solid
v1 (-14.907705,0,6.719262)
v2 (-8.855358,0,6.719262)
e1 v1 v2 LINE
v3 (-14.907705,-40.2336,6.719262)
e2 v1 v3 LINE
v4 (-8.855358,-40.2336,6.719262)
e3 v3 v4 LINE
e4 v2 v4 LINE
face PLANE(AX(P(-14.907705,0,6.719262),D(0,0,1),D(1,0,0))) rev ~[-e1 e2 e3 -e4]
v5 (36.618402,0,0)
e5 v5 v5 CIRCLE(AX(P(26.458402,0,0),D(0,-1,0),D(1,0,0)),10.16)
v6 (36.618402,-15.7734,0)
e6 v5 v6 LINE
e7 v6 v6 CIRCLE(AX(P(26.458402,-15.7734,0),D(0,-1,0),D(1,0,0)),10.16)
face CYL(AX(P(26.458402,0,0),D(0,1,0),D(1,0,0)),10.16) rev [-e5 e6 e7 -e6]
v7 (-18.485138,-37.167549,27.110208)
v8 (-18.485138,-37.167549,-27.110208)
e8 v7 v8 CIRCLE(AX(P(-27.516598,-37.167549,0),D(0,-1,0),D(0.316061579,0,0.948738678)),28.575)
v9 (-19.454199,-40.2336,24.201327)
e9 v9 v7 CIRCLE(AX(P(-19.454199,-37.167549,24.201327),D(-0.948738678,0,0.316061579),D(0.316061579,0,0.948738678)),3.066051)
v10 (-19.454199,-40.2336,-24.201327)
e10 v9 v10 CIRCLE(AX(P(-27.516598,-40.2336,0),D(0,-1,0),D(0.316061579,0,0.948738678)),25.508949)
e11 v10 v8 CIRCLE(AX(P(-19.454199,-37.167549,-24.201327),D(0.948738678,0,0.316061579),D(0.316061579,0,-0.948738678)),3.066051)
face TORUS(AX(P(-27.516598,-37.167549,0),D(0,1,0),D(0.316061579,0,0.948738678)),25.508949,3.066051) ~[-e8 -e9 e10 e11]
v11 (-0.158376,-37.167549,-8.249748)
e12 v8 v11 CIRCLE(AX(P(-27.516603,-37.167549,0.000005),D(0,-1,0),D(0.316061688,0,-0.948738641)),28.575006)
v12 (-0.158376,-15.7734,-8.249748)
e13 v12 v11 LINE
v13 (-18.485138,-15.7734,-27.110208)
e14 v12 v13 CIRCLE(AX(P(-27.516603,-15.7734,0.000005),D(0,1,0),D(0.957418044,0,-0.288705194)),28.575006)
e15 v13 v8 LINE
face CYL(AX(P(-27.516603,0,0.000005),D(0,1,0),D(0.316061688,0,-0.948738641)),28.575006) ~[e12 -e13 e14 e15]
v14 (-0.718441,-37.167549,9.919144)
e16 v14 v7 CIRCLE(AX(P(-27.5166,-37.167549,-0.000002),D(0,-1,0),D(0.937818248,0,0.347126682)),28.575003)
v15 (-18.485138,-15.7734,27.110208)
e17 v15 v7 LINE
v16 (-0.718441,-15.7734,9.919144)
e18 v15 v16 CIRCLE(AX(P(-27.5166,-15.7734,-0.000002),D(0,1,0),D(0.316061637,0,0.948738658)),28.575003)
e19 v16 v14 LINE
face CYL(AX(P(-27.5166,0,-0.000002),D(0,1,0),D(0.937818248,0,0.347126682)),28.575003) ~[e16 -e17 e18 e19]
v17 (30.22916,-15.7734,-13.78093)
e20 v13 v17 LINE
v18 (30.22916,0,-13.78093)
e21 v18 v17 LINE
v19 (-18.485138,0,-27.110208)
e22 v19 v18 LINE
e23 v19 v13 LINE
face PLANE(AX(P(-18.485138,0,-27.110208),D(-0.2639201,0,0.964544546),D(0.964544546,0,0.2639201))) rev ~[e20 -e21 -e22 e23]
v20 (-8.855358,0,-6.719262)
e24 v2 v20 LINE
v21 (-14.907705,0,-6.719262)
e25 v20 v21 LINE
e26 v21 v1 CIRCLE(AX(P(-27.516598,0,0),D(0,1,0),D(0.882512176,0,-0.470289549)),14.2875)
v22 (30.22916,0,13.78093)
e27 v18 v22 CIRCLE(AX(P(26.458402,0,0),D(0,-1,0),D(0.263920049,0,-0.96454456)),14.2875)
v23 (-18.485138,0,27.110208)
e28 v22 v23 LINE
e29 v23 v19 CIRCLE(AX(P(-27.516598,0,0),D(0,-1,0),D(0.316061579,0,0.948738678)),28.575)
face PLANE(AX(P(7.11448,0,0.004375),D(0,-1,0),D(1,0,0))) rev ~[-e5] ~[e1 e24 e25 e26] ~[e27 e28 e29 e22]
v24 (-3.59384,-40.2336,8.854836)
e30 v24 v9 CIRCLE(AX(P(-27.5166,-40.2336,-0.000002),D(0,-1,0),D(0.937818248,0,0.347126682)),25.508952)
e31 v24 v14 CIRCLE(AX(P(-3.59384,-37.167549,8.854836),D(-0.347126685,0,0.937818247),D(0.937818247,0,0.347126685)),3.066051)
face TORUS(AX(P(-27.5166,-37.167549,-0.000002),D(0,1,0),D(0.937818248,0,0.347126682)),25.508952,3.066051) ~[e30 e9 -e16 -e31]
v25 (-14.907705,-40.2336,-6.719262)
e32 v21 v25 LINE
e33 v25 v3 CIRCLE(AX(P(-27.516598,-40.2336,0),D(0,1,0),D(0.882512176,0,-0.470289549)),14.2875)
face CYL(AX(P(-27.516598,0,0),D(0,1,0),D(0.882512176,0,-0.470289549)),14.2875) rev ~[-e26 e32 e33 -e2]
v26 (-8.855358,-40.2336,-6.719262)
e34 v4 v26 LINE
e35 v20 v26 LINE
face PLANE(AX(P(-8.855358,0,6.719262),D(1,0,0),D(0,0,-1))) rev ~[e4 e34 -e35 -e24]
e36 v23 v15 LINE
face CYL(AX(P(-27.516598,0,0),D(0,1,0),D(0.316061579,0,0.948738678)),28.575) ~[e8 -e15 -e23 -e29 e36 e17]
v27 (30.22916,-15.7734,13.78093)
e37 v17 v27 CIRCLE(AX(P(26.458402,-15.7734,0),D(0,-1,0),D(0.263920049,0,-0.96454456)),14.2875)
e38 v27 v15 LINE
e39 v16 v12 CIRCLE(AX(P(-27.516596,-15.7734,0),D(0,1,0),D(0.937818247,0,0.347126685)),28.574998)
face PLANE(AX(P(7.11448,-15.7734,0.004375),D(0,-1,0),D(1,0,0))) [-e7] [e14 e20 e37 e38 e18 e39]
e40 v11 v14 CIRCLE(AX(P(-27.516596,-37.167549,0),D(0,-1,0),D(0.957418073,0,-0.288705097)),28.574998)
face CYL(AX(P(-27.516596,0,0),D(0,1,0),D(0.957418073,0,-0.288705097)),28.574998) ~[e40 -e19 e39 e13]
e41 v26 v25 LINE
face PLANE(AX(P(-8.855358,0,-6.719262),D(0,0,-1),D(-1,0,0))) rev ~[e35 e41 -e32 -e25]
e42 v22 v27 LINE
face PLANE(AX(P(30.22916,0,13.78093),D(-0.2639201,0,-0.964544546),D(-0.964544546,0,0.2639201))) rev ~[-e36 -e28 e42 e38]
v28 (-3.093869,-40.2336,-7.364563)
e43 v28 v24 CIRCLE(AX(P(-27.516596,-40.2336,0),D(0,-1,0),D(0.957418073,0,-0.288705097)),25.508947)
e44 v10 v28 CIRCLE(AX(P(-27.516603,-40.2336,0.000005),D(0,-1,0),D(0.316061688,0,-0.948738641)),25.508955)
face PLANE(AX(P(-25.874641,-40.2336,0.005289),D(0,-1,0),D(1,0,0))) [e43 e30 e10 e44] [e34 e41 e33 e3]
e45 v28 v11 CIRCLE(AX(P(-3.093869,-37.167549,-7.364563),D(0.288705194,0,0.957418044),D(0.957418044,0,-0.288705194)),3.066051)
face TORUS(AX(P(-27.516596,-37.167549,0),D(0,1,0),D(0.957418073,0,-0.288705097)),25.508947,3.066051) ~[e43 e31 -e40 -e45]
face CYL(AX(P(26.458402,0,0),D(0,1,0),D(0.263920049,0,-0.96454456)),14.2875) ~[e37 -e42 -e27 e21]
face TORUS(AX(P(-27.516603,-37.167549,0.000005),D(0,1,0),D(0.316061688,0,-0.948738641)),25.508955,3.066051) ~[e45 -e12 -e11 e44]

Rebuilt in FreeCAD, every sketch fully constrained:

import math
import FreeCAD as App
import Part
import Sketcher

V = App.Vector
Q = App.Units.Quantity


def edges_at(feature, points):
    """Names of the edges that pass closest to the given points."""
    edges = feature.Shape.Edges
    near = lambda p: min(range(len(edges)), key=lambda i: edges[i].distToShape(Part.Vertex(*p))[0])
    return sorted({f"Edge{near(p) + 1}" for p in points})

doc = App.newDocument("Part")
body = doc.addObject("PartDesign::Body", "Body")

# Sketch on XZ plane
sketch1 = body.newObject("Sketcher::SketchObject", "Sketch")
sketch1.AttachmentSupport = (doc.getObject("XZ_Plane"), [""])
sketch1.MapMode = "FlatFace"
sketch1.addGeometry(Part.ArcOfCircle(Part.Circle(V(-27.5166, -0.000002, 0), V(0, 0, 1), 28.575003), math.radians(20.31167), math.radians(71.575084)), False)
sketch1.addGeometry(Part.ArcOfCircle(Part.Circle(V(-27.516596, 0, 0), V(0, 0, 1), 28.574998), math.radians(-16.780448), math.radians(20.311671)), False)
sketch1.addGeometry(Part.ArcOfCircle(Part.Circle(V(-27.516603, 0.000005, 0), V(0, 0, 1), 28.575006), math.radians(-71.575081), math.radians(-16.780454)), False)
sketch1.addGeometry(Part.LineSegment(V(-18.485138, -27.110208, 0), V(30.22916, -13.78093, 0)), False)
sketch1.addGeometry(Part.ArcOfCircle(Part.Circle(V(26.458402, 0, 0), V(0, 0, 1), 14.2875), math.radians(-74.697208), math.radians(74.697208)), False)
sketch1.addGeometry(Part.LineSegment(V(30.22916, 13.78093, 0), V(-18.485138, 27.110208, 0)), False)
sketch1.addGeometry(Part.Circle(V(26.458402, 0, 0), V(0, 0, 1), 10.16), False)
sketch1.addConstraint(Sketcher.Constraint("Tangent", 0, 1, 1, 2))
sketch1.addConstraint(Sketcher.Constraint("Tangent", 1, 1, 2, 2))
sketch1.addConstraint(Sketcher.Constraint("Coincident", 2, 1, 3, 1))
sketch1.addConstraint(Sketcher.Constraint("Tangent", 3, 2, 4, 1))
sketch1.addConstraint(Sketcher.Constraint("Tangent", 4, 2, 5, 1))
sketch1.addConstraint(Sketcher.Constraint("Coincident", 5, 2, 0, 2))
sketch1.addConstraint(Sketcher.Constraint("Coincident", 2, 3, 0, 3))
sketch1.addConstraint(Sketcher.Constraint("Coincident", 6, 3, 4, 3))
sketch1.addConstraint(Sketcher.Constraint("Symmetric", 3, 2, 4, 2, -1))
sketch1.addConstraint(Sketcher.Constraint("PointOnObject", 0, 3, -1))
sketch1.addConstraint(Sketcher.Constraint("Diameter", 6, Q("0.8 in")))
sketch1.addConstraint(Sketcher.Constraint("Radius", 0, Q("1.1250001 in")))
sketch1.addConstraint(Sketcher.Constraint("Radius", 4, Q("0.5625 in")))
sketch1.addConstraint(Sketcher.Constraint("DistanceX", 1, 3, 4, 3, Q("2.1249999 in")))
sketch1.addConstraint(Sketcher.Constraint("DistanceX", 0, 3, -1, 1, Q("27.5166 mm")))
sketch1.addConstraint(Sketcher.Constraint("DistanceX", 0, 1, 3, 2, Q("30.947601 mm")))
sketch1.addConstraint(Sketcher.Constraint("DistanceY", 2, 1, -1, 1, Q("27.110208 mm")))
sketch1.addConstraint(Sketcher.Constraint("DistanceY", 1, 1, 0, 1, Q("18.168892 mm")))
pad1 = body.newObject("PartDesign::Pad", "Pad")
pad1.Profile = sketch1
pad1.Length = Q("0.621 in")

# Sketch on XZ plane
sketch2 = body.newObject("Sketcher::SketchObject", "Sketch001")
sketch2.AttachmentSupport = (doc.getObject("XZ_Plane"), [""])
sketch2.MapMode = "FlatFace"
sketch2.addGeometry(Part.ArcOfCircle(Part.Circle(V(-27.516596, 0, 0), V(0, 0, 1), 28.574998), math.radians(-16.780448), math.radians(20.311671)), False)
sketch2.addGeometry(Part.ArcOfCircle(Part.Circle(V(-27.5166, -0.000002, 0), V(0, 0, 1), 28.575003), math.radians(20.31167), math.radians(71.575084)), False)
sketch2.addGeometry(Part.ArcOfCircle(Part.Circle(V(-27.516598, 0, 0), V(0, 0, 1), 28.575), math.radians(71.575088), math.radians(288.424912)), False)
sketch2.addGeometry(Part.ArcOfCircle(Part.Circle(V(-27.516603, 0.000005, 0), V(0, 0, 1), 28.575006), math.radians(-71.575081), math.radians(-16.780454)), False)
sketch2.addGeometry(Part.LineSegment(V(-8.855358, -6.719262, 0), V(-14.907705, -6.719262, 0)), False)
sketch2.addGeometry(Part.ArcOfCircle(Part.Circle(V(-27.516598, 0, 0), V(0, 0, 1), 14.2875), math.radians(28.053093), math.radians(331.946907)), False)
sketch2.addGeometry(Part.LineSegment(V(-14.907705, 6.719262, 0), V(-8.855358, 6.719262, 0)), False)
sketch2.addGeometry(Part.LineSegment(V(-8.855358, 6.719262, 0), V(-8.855358, -6.719262, 0)), False)
sketch2.addConstraint(Sketcher.Constraint("Tangent", 0, 2, 1, 1))
sketch2.addConstraint(Sketcher.Constraint("Tangent", 1, 2, 2, 1))
sketch2.addConstraint(Sketcher.Constraint("Tangent", 2, 2, 3, 1))
sketch2.addConstraint(Sketcher.Constraint("Tangent", 3, 2, 0, 1))
sketch2.addConstraint(Sketcher.Constraint("Coincident", 4, 2, 5, 2))
sketch2.addConstraint(Sketcher.Constraint("Coincident", 5, 1, 6, 1))
sketch2.addConstraint(Sketcher.Constraint("Coincident", 6, 2, 7, 1))
sketch2.addConstraint(Sketcher.Constraint("Coincident", 7, 2, 4, 1))
sketch2.addConstraint(Sketcher.Constraint("Horizontal", 4))
sketch2.addConstraint(Sketcher.Constraint("Horizontal", 6))
sketch2.addConstraint(Sketcher.Constraint("Vertical", 7))
sketch2.addConstraint(Sketcher.Constraint("Coincident", 5, 3, 0, 3))
sketch2.addConstraint(Sketcher.Constraint("Symmetric", 1, 2, 2, 2, -1))
sketch2.addConstraint(Sketcher.Constraint("Symmetric", 4, 2, 5, 1, -1))
sketch2.addConstraint(Sketcher.Constraint("Radius", 0, Q("1.1249999 in")))
sketch2.addConstraint(Sketcher.Constraint("Radius", 5, Q("0.5625 in")))
sketch2.addConstraint(Sketcher.Constraint("DistanceX", 1, 3, -1, 1, Q("27.5166 mm")))
sketch2.addConstraint(Sketcher.Constraint("DistanceX", 4, 2, 4, 1, Q("6.052347 mm")))
sketch2.addConstraint(Sketcher.Constraint("DistanceY", 7, 2, 7, 1, Q("13.438524 mm")))
sketch2.addConstraint(Sketcher.Constraint("DistanceX", 0, 2, -1, 1, Q("0.718441 mm")))
sketch2.addConstraint(Sketcher.Constraint("DistanceX", 1, 2, -1, 1, Q("18.485138 mm")))
sketch2.addConstraint(Sketcher.Constraint("DistanceY", 3, 2, -1, 1, Q("8.249748 mm")))
pad2 = body.newObject("PartDesign::Pad", "Pad001")
pad2.Profile = sketch2
pad2.Length = Q("1.584 in")
doc.recompute()

fillet = body.newObject("PartDesign::Fillet", "Fillet")
fillet.Base = (pad2, edges_at(pad2, [(-56.092, -40.234, 0)]))
fillet.Radius = 3.066051

doc.recompute()
